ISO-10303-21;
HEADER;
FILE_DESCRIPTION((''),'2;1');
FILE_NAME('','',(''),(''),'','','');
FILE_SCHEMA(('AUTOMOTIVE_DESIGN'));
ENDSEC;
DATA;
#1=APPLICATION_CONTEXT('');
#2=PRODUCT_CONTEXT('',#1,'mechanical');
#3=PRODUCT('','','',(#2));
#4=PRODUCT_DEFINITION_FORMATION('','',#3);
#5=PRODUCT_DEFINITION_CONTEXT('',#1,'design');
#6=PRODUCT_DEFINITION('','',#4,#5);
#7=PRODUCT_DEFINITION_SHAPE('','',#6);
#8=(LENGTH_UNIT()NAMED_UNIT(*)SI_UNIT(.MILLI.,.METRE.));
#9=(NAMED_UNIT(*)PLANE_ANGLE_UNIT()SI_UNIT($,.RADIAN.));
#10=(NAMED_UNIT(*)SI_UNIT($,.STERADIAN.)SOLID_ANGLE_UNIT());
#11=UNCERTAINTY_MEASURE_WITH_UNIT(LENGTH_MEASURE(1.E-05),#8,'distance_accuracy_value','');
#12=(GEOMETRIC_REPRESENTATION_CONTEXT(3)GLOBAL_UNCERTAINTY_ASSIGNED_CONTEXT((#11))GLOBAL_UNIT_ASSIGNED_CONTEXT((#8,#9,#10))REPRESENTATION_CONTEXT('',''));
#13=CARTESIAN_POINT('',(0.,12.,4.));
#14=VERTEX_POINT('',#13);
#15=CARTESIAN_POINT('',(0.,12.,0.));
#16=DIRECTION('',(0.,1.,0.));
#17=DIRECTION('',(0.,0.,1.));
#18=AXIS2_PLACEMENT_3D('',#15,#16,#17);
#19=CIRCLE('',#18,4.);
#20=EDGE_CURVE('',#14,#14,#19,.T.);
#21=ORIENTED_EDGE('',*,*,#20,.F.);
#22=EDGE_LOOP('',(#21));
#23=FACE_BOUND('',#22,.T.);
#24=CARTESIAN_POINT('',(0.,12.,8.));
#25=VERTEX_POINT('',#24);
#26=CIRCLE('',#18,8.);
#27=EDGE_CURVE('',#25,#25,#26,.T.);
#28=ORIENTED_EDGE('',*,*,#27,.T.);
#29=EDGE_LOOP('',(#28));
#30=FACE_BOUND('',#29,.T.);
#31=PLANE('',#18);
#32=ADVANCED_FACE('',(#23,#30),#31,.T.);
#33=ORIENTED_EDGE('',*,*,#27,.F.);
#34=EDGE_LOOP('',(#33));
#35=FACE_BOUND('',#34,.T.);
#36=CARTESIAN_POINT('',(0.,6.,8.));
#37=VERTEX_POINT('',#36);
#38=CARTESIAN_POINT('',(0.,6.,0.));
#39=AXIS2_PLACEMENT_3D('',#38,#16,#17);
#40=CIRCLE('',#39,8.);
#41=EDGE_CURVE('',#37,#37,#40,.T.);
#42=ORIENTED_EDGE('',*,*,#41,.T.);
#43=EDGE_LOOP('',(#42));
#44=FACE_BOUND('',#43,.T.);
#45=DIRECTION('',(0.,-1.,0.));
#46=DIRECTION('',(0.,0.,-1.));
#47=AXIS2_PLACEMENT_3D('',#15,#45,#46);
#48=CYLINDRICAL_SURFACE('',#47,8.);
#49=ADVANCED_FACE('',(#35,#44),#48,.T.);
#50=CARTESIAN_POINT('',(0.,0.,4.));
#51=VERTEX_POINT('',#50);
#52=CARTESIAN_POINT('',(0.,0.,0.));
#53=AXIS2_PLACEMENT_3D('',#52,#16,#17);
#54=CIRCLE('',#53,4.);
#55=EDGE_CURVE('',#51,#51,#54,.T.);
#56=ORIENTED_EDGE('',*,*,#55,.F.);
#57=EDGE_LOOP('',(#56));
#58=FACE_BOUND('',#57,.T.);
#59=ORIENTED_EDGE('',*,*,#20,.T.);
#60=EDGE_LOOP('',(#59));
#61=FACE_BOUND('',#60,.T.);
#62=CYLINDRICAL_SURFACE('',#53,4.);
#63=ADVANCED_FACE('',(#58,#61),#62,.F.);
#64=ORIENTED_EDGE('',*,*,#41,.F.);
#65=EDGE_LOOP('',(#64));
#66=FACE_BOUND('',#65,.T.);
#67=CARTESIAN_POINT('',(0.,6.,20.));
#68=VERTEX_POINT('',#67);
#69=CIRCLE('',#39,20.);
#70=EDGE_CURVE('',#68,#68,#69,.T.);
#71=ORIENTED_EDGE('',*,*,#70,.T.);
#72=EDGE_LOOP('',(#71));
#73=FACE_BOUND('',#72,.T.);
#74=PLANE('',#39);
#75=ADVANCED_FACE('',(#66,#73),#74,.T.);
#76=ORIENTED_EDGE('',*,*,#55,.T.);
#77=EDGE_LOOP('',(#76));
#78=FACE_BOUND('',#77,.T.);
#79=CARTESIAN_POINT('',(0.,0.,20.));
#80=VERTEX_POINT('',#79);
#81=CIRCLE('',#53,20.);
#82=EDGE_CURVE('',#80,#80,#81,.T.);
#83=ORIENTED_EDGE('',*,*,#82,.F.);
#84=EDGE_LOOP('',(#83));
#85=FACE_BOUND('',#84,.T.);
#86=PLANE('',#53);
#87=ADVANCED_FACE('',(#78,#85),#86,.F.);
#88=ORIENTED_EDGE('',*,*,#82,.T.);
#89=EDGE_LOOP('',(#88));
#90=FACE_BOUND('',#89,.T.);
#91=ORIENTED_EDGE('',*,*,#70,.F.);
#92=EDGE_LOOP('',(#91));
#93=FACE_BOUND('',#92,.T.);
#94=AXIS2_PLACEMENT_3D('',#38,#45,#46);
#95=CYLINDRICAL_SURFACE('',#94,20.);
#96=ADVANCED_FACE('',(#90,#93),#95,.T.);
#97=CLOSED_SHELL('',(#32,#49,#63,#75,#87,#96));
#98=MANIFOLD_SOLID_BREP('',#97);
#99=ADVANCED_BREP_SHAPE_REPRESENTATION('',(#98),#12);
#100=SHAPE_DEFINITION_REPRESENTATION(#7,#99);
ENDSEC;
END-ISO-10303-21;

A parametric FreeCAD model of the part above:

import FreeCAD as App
import Part
import Sketcher

doc = App.newDocument("Part")
body = doc.addObject("PartDesign::Body", "Body")

# Sketch on XZ plane
sketch1 = doc.addObject("Sketcher::SketchObject", "Sketch")
body.addObject(sketch1)
sketch1.AttachmentSupport = (doc.XZ_Plane, [""])
sketch1.MapMode = "FlatFace"
sketch1.addGeometry(Part.Circle(App.Vector(0, 0, 0), App.Vector(0, 0, 1), 20), False)
sketch1.addConstraint(Sketcher.Constraint("Coincident", 0, 3, -1, 1))
sketch1.addConstraint(Sketcher.Constraint("Diameter", 0, 40.0))
pad1 = doc.addObject("PartDesign::Pad", "Pad")
body.addObject(pad1)
pad1.Profile = sketch1
pad1.Length = 6
pad1.Reversed = True

# Sketch on XZ plane
sketch2 = doc.addObject("Sketcher::SketchObject", "Sketch001")
body.addObject(sketch2)
sketch2.AttachmentSupport = (doc.XZ_Plane, [""])
sketch2.MapMode = "FlatFace"
sketch2.AttachmentOffset = App.Placement(App.Vector(0, 0, -6), App.Rotation())
sketch2.addGeometry(Part.Circle(App.Vector(0, 0, 0), App.Vector(0, 0, 1), 8), False)
sketch2.addConstraint(Sketcher.Constraint("Coincident", 0, 3, -1, 1))
sketch2.addConstraint(Sketcher.Constraint("Diameter", 0, 16.0))
pad2 = doc.addObject("PartDesign::Pad", "Pad001")
body.addObject(pad2)
pad2.Profile = sketch2
pad2.Length = 6
pad2.Reversed = True

# Sketch on XZ plane
sketch3 = doc.addObject("Sketcher::SketchObject", "Sketch002")
body.addObject(sketch3)
sketch3.AttachmentSupport = (doc.XZ_Plane, [""])
sketch3.MapMode = "FlatFace"
sketch3.AttachmentOffset = App.Placement(App.Vector(0, 0, -12), App.Rotation())
sketch3.addGeometry(Part.Circle(App.Vector(0, 0, 0), App.Vector(0, 0, 1), 4), False)
sketch3.addConstraint(Sketcher.Constraint("Coincident", 0, 3, -1, 1))
sketch3.addConstraint(Sketcher.Constraint("Diameter", 0, 8.0))
pocket1 = doc.addObject("PartDesign::Pocket", "Pocket")
body.addObject(pocket1)
pocket1.Profile = sketch3
pocket1.Type = "ThroughAll"
pocket1.Reversed = True

doc.recompute()
